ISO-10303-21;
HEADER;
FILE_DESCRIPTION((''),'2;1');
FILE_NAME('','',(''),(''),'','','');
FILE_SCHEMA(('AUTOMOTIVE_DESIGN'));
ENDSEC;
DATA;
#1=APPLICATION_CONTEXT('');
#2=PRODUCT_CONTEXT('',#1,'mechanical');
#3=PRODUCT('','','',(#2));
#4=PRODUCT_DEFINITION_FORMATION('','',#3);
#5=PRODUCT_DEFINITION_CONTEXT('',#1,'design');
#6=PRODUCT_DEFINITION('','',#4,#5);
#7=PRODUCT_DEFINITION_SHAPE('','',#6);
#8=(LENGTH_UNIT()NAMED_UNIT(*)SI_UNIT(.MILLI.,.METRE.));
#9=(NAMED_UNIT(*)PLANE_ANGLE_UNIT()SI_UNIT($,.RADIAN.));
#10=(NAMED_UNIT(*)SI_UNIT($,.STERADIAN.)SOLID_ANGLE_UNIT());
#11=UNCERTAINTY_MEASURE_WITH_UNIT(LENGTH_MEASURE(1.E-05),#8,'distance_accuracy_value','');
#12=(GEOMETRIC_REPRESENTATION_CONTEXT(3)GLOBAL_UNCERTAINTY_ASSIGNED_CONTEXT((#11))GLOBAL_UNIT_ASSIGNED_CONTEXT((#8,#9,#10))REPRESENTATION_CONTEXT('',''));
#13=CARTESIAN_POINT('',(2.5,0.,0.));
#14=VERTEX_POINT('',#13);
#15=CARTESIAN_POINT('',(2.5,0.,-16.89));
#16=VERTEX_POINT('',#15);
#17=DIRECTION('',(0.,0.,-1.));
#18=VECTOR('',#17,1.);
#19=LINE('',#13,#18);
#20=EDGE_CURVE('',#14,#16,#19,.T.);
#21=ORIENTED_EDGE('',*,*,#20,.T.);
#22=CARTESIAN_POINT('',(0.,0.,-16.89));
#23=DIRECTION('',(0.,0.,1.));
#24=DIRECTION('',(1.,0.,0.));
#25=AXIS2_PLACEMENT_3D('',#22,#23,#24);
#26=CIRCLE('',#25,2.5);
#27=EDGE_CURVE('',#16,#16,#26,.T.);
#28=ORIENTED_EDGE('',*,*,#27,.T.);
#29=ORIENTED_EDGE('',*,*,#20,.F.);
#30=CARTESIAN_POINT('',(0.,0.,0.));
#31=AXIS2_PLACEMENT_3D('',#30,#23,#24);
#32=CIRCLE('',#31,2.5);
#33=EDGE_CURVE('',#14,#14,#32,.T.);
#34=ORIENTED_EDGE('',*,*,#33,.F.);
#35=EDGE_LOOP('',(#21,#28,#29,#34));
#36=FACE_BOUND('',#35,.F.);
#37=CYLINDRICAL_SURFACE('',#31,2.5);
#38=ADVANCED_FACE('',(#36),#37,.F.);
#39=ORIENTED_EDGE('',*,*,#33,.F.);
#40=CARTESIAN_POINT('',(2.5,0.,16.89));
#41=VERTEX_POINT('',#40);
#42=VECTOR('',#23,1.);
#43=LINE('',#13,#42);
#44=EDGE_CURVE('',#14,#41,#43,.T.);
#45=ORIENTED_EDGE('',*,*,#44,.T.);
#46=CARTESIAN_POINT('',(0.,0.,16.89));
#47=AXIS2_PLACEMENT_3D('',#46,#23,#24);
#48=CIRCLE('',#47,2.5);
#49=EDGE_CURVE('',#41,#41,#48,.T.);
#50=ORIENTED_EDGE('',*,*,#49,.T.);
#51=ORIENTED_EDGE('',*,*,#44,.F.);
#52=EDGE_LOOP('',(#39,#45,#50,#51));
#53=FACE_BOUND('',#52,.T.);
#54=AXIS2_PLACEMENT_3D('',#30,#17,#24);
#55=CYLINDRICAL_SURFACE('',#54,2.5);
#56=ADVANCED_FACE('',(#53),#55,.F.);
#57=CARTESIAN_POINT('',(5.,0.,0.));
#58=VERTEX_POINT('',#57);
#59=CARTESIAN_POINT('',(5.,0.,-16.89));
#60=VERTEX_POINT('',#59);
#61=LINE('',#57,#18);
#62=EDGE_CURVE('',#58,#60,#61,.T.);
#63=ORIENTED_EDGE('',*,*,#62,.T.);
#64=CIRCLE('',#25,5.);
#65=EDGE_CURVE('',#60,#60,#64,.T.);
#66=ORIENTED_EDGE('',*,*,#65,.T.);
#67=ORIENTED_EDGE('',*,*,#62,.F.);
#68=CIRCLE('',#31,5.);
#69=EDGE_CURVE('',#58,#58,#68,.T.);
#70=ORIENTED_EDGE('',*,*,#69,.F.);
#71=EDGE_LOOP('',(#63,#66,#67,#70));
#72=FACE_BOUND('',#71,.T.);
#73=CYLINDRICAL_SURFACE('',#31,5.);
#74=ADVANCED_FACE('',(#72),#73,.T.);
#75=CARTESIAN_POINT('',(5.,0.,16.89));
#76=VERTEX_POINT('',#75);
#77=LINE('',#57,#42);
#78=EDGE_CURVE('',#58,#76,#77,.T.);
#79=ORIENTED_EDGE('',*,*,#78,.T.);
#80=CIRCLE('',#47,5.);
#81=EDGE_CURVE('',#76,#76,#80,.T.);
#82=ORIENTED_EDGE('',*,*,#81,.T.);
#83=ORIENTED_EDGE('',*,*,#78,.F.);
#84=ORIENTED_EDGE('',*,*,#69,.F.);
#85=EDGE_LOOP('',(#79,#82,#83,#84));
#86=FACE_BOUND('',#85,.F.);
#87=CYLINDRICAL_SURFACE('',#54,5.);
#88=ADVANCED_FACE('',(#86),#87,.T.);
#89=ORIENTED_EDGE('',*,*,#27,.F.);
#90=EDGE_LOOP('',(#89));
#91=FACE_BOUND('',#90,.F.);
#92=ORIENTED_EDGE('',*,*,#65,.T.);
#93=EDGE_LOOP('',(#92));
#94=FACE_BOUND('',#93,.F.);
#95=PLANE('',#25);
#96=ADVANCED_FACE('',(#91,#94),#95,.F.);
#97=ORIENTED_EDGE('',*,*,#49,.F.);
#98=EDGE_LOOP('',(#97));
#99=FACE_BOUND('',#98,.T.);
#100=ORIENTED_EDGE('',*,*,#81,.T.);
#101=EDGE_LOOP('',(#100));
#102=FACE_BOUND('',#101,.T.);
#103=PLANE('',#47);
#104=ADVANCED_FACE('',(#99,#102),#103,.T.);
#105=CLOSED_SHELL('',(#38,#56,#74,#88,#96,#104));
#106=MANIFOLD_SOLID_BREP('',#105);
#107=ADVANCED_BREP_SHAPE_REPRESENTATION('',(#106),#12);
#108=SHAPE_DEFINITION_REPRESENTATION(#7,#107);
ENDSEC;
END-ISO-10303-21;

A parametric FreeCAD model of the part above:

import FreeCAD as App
import Part
import Sketcher
from FreeCAD import Vector
Q = App.Units.Quantity

doc = App.newDocument("Part")
params = doc.addObject("Spreadsheet::Sheet", "Params")
for row, (alias, value) in enumerate([
    ("sketch1_diameter", "10 mm"),
    ("sketch1_diameter2", "5 mm"),
    ("pad1_length", "33.78 mm"),
], start=1):
    params.set(f"A{row}", alias)
    params.set(f"B{row}", "=" + value)
    params.setAlias(f"B{row}", alias)

body = doc.addObject("PartDesign::Body", "Body")

sketch1 = body.newObject("Sketcher::SketchObject", "Sketch")
sketch1.AttachmentSupport = (doc.getObject("XY_Plane"), [""])
sketch1.MapMode = "FlatFace"
sketch1.addGeometry([
    Part.Circle(Vector(0, 0, 0), Vector(0, 0, 1), 5),
    Part.Circle(Vector(0, 0, 0), Vector(0, 0, 1), 2.5),
], False)
sketch1.addConstraint([
    Sketcher.Constraint("Coincident", 0, 3, -1, 1),
    Sketcher.Constraint("Coincident", 1, 3, -1, 1),
    Sketcher.Constraint("Diameter", 0, Q("10 mm")),
    Sketcher.Constraint("Diameter", 1, Q("5 mm")),
])
sketch1.setExpression("Constraints[2]", "Params.sketch1_diameter")
sketch1.setExpression("Constraints[3]", "Params.sketch1_diameter2")
pad1 = body.newObject("PartDesign::Pad", "Pad")
pad1.Profile = sketch1
pad1.setExpression("Length", "Params.pad1_length")
pad1.Midplane = True

doc.recompute()
